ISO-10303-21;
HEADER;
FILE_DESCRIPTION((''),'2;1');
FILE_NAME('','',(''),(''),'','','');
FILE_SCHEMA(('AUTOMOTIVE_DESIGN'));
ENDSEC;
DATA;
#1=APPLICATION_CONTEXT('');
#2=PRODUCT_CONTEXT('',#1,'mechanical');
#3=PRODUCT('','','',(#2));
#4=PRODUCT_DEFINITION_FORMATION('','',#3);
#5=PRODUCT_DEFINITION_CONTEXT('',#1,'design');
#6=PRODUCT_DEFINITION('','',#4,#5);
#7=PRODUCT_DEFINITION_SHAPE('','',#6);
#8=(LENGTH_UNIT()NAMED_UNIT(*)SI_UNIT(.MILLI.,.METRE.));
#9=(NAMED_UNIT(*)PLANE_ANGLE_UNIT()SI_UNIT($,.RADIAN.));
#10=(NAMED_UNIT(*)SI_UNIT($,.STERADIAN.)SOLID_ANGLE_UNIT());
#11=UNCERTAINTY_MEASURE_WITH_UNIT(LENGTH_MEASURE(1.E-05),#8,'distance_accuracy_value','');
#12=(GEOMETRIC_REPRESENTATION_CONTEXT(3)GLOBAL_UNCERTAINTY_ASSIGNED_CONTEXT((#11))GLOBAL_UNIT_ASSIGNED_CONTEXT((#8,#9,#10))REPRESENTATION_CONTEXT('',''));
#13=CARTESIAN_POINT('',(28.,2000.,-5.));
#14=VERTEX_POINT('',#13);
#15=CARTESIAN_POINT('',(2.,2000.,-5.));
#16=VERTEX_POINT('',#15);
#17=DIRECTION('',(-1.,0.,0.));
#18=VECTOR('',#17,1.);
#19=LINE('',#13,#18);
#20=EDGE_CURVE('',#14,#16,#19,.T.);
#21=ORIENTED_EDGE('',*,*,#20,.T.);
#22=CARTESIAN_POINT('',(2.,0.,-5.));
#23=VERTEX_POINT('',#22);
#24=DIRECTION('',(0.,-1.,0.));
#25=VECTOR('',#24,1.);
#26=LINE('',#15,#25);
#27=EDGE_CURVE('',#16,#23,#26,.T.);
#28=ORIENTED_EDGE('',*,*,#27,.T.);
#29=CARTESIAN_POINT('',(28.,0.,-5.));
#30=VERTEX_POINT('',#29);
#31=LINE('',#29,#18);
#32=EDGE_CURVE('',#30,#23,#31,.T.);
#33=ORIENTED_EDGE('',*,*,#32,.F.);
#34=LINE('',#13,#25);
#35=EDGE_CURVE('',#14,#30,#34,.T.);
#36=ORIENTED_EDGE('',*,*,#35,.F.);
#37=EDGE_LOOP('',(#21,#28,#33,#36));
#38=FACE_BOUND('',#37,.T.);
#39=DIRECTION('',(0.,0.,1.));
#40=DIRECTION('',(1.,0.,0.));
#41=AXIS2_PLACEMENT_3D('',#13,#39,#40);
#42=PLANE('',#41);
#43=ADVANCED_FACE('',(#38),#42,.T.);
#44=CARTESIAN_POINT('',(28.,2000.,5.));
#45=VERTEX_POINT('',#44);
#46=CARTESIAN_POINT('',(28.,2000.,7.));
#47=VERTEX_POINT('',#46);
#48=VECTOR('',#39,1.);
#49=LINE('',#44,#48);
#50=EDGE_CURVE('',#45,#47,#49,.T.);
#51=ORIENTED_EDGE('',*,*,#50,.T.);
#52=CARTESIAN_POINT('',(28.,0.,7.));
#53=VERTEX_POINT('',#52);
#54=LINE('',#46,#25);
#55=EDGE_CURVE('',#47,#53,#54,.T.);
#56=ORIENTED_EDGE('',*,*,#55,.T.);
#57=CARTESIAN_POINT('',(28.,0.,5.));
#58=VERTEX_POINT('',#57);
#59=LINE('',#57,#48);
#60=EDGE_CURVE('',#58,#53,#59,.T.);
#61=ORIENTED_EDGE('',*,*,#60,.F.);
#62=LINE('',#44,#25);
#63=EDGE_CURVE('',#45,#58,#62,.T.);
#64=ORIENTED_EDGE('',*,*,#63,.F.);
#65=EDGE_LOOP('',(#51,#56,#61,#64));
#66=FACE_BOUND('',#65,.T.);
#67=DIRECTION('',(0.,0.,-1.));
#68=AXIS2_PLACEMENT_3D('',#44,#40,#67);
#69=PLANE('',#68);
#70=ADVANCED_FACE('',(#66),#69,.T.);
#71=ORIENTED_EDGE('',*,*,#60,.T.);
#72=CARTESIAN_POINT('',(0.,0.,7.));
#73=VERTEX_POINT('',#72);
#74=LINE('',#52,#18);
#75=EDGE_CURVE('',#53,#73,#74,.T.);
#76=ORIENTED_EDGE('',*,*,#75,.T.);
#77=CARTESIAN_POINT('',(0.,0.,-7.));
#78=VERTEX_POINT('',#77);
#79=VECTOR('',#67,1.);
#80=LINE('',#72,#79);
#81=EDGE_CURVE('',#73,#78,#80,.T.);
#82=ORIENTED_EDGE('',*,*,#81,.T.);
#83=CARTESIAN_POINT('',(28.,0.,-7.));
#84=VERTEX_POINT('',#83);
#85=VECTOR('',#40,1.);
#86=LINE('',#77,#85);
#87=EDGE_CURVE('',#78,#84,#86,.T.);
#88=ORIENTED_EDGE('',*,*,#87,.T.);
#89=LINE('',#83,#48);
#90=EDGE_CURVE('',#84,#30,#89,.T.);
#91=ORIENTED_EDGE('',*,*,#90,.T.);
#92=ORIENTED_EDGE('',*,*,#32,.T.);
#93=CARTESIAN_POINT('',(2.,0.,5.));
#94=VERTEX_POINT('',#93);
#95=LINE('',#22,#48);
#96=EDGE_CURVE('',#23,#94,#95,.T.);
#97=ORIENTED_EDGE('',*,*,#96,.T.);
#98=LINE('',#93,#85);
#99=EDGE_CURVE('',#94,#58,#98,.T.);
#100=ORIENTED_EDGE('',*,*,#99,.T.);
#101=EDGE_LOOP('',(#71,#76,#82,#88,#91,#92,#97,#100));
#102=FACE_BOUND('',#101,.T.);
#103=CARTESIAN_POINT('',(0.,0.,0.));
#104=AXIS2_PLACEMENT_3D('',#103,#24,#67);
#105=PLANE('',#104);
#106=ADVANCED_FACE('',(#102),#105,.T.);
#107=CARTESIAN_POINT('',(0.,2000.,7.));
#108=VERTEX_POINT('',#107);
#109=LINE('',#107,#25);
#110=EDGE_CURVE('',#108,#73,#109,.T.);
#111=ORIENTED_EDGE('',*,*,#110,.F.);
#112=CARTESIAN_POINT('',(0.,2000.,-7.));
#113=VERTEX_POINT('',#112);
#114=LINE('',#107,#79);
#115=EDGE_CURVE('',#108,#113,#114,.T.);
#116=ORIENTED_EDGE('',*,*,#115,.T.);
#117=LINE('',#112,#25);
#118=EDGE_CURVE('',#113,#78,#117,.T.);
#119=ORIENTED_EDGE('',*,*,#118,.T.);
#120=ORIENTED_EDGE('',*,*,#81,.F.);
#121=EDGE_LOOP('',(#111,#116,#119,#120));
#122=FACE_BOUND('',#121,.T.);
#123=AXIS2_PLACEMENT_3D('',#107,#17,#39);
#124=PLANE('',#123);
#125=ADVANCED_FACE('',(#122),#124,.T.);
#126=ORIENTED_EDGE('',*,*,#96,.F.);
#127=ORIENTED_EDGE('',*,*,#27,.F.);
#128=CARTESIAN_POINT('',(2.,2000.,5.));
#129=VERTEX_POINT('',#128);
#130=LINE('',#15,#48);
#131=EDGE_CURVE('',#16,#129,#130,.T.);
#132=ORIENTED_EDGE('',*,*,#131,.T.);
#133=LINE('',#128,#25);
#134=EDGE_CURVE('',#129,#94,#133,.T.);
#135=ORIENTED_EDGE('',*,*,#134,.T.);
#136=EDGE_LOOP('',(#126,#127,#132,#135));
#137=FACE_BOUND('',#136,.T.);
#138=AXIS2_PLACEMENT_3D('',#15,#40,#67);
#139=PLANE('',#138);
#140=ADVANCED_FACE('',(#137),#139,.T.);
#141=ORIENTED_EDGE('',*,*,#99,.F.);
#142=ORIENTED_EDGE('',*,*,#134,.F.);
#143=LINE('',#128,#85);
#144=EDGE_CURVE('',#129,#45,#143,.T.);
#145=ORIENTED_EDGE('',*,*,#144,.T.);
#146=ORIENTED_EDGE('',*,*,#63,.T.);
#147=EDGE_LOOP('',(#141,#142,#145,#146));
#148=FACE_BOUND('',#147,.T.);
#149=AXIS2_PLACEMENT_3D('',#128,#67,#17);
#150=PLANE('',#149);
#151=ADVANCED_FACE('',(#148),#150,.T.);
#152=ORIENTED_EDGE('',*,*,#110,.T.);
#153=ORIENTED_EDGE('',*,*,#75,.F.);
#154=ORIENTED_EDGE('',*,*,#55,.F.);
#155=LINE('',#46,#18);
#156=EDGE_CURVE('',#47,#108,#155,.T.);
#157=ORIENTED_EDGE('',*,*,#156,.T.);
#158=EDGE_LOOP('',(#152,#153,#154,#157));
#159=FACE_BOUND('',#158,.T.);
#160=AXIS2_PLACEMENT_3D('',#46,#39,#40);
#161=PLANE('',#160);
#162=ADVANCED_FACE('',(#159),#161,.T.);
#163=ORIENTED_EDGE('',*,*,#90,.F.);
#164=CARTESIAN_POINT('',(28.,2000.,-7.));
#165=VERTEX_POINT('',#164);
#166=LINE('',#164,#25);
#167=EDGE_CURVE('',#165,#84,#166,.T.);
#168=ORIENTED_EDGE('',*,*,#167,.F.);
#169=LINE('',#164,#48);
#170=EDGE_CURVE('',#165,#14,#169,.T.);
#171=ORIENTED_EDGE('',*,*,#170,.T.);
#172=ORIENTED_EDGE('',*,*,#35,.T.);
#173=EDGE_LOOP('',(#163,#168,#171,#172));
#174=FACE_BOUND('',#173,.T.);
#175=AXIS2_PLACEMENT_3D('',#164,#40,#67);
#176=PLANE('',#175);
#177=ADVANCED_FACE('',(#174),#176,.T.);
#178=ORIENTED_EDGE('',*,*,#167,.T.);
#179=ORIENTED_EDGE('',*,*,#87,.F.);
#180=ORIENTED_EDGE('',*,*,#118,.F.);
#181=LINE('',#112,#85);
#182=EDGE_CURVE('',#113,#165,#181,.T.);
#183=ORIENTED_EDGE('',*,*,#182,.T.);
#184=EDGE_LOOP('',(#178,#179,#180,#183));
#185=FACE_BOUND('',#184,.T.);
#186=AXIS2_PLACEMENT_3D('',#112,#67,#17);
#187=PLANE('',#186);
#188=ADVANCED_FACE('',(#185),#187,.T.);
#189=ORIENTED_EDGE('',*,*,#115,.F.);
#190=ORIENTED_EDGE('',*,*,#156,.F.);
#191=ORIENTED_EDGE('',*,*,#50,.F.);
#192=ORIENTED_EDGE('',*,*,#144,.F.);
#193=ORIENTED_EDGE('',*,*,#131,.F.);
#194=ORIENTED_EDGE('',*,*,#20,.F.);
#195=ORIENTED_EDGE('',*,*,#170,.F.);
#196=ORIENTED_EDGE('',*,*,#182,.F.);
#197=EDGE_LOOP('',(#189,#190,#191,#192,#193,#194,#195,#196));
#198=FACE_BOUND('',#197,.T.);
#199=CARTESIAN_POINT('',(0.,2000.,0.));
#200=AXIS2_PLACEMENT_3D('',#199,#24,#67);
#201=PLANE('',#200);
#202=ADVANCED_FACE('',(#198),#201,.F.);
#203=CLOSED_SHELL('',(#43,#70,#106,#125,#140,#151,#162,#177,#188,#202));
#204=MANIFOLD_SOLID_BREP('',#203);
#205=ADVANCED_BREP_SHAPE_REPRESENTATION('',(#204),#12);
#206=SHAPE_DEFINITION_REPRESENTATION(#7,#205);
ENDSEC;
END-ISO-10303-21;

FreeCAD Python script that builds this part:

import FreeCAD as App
import Part
import Sketcher
Q = App.Units.Quantity


def add_polygon(sketch, points):
    """Adds a closed chain of lines whose ends are joined by coincident constraints."""
    first, n = sketch.GeometryCount, len(points)
    for a, b in zip(points, points[1:] + points[:1]):
        sketch.addGeometry(Part.LineSegment(App.Vector(*a, 0), App.Vector(*b, 0)), False)
    for i in range(n):
        sketch.addConstraint(Sketcher.Constraint("Coincident", first + i, 2, first + (i + 1) % n, 1))

doc = App.newDocument("Part")
params = doc.addObject("Spreadsheet::Sheet", "Params")
for row, (alias, value) in enumerate([
    ("sketch1_width", "28 mm"),
    ("sketch1_width2", "26 mm"),
    ("sketch1_height", "14 mm"),
    ("sketch1_height2", "2 mm"),
    ("pad1_length", "2000 mm"),
], start=1):
    params.set(f"A{row}", alias)
    params.set(f"B{row}", "=" + value)
    params.setAlias(f"B{row}", alias)

body = doc.addObject("PartDesign::Body", "Body")

# Sketch on XZ plane
sketch1 = body.newObject("Sketcher::SketchObject", "Sketch")
sketch1.AttachmentSupport = (doc.getObject("XZ_Plane"), [""])
sketch1.MapMode = "FlatFace"
add_polygon(sketch1, [(0, -7), (0, 7), (28, 7), (28, 5), (2, 5), (2, -5), (28, -5), (28, -7)])  # lines 0-7
sketch1.addConstraint(Sketcher.Constraint("Vertical", 0))
sketch1.addConstraint(Sketcher.Constraint("Horizontal", 1))
sketch1.addConstraint(Sketcher.Constraint("Vertical", 2))
sketch1.addConstraint(Sketcher.Constraint("Horizontal", 3))
sketch1.addConstraint(Sketcher.Constraint("Vertical", 4))
sketch1.addConstraint(Sketcher.Constraint("Horizontal", 5))
sketch1.addConstraint(Sketcher.Constraint("Vertical", 6))
sketch1.addConstraint(Sketcher.Constraint("Horizontal", 7))
sketch1.addConstraint(Sketcher.Constraint("Symmetric", 0, 2, 7, 2, -1, 1))
sketch1.addConstraint(Sketcher.Constraint("Symmetric", 2, 2, 5, 2, -1))
sketch1.addConstraint(Sketcher.Constraint("DistanceX", 1, 1, 1, 2, Q("28 mm")))
sketch1.addConstraint(Sketcher.Constraint("DistanceX", 3, 2, 3, 1, Q("26 mm")))
sketch1.addConstraint(Sketcher.Constraint("DistanceY", 0, 1, 0, 2, Q("14 mm")))
sketch1.addConstraint(Sketcher.Constraint("DistanceY", 2, 2, 2, 1, Q("2 mm")))
sketch1.setExpression("Constraints[18]", "Params.sketch1_width")
sketch1.setExpression("Constraints[19]", "Params.sketch1_width2")
sketch1.setExpression("Constraints[20]", "Params.sketch1_height")
sketch1.setExpression("Constraints[21]", "Params.sketch1_height2")
pad1 = body.newObject("PartDesign::Pad", "Pad")
pad1.Profile = sketch1
pad1.setExpression("Length", "Params.pad1_length")
pad1.Reversed = True

doc.recompute()
